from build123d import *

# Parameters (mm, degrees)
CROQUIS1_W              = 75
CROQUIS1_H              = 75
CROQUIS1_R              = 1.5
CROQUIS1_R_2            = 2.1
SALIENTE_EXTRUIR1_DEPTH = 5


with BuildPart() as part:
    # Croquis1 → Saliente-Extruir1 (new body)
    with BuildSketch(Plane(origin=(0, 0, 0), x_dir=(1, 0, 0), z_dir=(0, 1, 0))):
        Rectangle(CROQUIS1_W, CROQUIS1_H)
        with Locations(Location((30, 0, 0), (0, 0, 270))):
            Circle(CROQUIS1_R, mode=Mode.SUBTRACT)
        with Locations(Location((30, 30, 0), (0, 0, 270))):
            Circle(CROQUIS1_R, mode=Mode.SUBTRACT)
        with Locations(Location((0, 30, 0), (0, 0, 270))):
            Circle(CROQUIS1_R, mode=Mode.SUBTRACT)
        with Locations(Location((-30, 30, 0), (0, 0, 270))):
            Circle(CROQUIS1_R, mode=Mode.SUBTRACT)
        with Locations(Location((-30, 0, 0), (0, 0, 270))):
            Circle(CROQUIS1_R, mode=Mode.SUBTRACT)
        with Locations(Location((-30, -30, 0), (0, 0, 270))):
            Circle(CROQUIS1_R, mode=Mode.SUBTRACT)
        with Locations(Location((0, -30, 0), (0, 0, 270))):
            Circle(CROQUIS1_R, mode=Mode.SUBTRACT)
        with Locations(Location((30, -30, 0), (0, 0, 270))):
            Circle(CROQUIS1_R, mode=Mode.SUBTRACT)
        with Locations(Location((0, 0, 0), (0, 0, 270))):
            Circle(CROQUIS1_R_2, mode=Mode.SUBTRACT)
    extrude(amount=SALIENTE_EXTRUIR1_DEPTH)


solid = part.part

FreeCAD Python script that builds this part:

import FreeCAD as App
import Part
import Sketcher

V = App.Vector

doc = App.newDocument("Part")
body = doc.addObject("PartDesign::Body", "Body")

# Sketch on XZ plane
sketch1 = body.newObject("Sketcher::SketchObject", "Sketch")
sketch1.AttachmentSupport = (doc.getObject("XZ_Plane"), [""])
sketch1.MapMode = "FlatFace"
sketch1.addGeometry([
    Part.LineSegment(V(-37.5, -37.5, 0), V(-37.5, 37.5, 0)),  # 0
    Part.LineSegment(V(-37.5, 37.5, 0), V(37.5, 37.5, 0)),  # 1
    Part.LineSegment(V(37.5, 37.5, 0), V(37.5, -37.5, 0)),  # 2
    Part.LineSegment(V(37.5, -37.5, 0), V(-37.5, -37.5, 0)),  # 3
    Part.Circle(V(-30, 30, 0), V(0, 0, 1), 1.5),  # 4
    Part.Circle(V(0, 30, 0), V(0, 0, 1), 1.5),  # 5
    Part.Circle(V(30, 30, 0), V(0, 0, 1), 1.5),  # 6
    Part.Circle(V(-30, 0, 0), V(0, 0, 1), 1.5),  # 7
    Part.Circle(V(-30, -30, 0), V(0, 0, 1), 1.5),  # 8
    Part.Circle(V(0, 0, 0), V(0, 0, 1), 2.1),  # 9
    Part.Circle(V(30, 0, 0), V(0, 0, 1), 1.5),  # 10
    Part.Circle(V(0, -30, 0), V(0, 0, 1), 1.5),  # 11
    Part.Circle(V(30, -30, 0), V(0, 0, 1), 1.5),  # 12
], False)
sketch1.addConstraint([
    Sketcher.Constraint("Coincident", 0, 2, 1, 1),
    Sketcher.Constraint("Coincident", 1, 2, 2, 1),
    Sketcher.Constraint("Coincident", 2, 2, 3, 1),
    Sketcher.Constraint("Coincident", 3, 2, 0, 1),
    Sketcher.Constraint("Vertical", 0),
    Sketcher.Constraint("Horizontal", 1),
    Sketcher.Constraint("Vertical", 2),
    Sketcher.Constraint("Horizontal", 3),
    Sketcher.Constraint("Coincident", 9, 3, -1, 1),
    Sketcher.Constraint("Equal", 4, 5),
    Sketcher.Constraint("Equal", 5, 6),
    Sketcher.Constraint("Equal", 6, 7),
    Sketcher.Constraint("Equal", 7, 8),
    Sketcher.Constraint("Equal", 8, 10),
    Sketcher.Constraint("Equal", 10, 11),
    Sketcher.Constraint("Equal", 11, 12),
    Sketcher.Constraint("Symmetric", 6, 3, 8, 3, -1, 1),
    Sketcher.Constraint("Symmetric", 7, 3, 10, 3, -1, 1),
    Sketcher.Constraint("Symmetric", 5, 3, 11, 3, -1, 1),
    Sketcher.Constraint("Symmetric", 4, 3, 12, 3, -1, 1),
    Sketcher.Constraint("Symmetric", 0, 2, 2, 2, -1, 1),
    Sketcher.Constraint("Symmetric", 4, 3, 6, 3, -2),
    Sketcher.Constraint("PointOnObject", 5, 3, -2),
    Sketcher.Constraint("PointOnObject", 7, 3, -1),
    Sketcher.Constraint("Horizontal", 4, 3, 5, 3),
    Sketcher.Constraint("Vertical", 4, 3, 7, 3),
    Sketcher.Constraint("Equal", 3, 0),
    Sketcher.Constraint("Diameter", 4, 3.0),
    Sketcher.Constraint("Diameter", 9, 4.2),
    Sketcher.Constraint("DistanceX", 1, 1, 1, 2, 75.0),
    Sketcher.Constraint("DistanceX", 4, 3, -1, 1, 30.0),
    Sketcher.Constraint("DistanceY", -1, 1, 4, 3, 30.0),
])
pad1 = body.newObject("PartDesign::Pad", "Pad")
pad1.Profile = sketch1
pad1.Length = 5
pad1.Reversed = True

doc.recompute()
